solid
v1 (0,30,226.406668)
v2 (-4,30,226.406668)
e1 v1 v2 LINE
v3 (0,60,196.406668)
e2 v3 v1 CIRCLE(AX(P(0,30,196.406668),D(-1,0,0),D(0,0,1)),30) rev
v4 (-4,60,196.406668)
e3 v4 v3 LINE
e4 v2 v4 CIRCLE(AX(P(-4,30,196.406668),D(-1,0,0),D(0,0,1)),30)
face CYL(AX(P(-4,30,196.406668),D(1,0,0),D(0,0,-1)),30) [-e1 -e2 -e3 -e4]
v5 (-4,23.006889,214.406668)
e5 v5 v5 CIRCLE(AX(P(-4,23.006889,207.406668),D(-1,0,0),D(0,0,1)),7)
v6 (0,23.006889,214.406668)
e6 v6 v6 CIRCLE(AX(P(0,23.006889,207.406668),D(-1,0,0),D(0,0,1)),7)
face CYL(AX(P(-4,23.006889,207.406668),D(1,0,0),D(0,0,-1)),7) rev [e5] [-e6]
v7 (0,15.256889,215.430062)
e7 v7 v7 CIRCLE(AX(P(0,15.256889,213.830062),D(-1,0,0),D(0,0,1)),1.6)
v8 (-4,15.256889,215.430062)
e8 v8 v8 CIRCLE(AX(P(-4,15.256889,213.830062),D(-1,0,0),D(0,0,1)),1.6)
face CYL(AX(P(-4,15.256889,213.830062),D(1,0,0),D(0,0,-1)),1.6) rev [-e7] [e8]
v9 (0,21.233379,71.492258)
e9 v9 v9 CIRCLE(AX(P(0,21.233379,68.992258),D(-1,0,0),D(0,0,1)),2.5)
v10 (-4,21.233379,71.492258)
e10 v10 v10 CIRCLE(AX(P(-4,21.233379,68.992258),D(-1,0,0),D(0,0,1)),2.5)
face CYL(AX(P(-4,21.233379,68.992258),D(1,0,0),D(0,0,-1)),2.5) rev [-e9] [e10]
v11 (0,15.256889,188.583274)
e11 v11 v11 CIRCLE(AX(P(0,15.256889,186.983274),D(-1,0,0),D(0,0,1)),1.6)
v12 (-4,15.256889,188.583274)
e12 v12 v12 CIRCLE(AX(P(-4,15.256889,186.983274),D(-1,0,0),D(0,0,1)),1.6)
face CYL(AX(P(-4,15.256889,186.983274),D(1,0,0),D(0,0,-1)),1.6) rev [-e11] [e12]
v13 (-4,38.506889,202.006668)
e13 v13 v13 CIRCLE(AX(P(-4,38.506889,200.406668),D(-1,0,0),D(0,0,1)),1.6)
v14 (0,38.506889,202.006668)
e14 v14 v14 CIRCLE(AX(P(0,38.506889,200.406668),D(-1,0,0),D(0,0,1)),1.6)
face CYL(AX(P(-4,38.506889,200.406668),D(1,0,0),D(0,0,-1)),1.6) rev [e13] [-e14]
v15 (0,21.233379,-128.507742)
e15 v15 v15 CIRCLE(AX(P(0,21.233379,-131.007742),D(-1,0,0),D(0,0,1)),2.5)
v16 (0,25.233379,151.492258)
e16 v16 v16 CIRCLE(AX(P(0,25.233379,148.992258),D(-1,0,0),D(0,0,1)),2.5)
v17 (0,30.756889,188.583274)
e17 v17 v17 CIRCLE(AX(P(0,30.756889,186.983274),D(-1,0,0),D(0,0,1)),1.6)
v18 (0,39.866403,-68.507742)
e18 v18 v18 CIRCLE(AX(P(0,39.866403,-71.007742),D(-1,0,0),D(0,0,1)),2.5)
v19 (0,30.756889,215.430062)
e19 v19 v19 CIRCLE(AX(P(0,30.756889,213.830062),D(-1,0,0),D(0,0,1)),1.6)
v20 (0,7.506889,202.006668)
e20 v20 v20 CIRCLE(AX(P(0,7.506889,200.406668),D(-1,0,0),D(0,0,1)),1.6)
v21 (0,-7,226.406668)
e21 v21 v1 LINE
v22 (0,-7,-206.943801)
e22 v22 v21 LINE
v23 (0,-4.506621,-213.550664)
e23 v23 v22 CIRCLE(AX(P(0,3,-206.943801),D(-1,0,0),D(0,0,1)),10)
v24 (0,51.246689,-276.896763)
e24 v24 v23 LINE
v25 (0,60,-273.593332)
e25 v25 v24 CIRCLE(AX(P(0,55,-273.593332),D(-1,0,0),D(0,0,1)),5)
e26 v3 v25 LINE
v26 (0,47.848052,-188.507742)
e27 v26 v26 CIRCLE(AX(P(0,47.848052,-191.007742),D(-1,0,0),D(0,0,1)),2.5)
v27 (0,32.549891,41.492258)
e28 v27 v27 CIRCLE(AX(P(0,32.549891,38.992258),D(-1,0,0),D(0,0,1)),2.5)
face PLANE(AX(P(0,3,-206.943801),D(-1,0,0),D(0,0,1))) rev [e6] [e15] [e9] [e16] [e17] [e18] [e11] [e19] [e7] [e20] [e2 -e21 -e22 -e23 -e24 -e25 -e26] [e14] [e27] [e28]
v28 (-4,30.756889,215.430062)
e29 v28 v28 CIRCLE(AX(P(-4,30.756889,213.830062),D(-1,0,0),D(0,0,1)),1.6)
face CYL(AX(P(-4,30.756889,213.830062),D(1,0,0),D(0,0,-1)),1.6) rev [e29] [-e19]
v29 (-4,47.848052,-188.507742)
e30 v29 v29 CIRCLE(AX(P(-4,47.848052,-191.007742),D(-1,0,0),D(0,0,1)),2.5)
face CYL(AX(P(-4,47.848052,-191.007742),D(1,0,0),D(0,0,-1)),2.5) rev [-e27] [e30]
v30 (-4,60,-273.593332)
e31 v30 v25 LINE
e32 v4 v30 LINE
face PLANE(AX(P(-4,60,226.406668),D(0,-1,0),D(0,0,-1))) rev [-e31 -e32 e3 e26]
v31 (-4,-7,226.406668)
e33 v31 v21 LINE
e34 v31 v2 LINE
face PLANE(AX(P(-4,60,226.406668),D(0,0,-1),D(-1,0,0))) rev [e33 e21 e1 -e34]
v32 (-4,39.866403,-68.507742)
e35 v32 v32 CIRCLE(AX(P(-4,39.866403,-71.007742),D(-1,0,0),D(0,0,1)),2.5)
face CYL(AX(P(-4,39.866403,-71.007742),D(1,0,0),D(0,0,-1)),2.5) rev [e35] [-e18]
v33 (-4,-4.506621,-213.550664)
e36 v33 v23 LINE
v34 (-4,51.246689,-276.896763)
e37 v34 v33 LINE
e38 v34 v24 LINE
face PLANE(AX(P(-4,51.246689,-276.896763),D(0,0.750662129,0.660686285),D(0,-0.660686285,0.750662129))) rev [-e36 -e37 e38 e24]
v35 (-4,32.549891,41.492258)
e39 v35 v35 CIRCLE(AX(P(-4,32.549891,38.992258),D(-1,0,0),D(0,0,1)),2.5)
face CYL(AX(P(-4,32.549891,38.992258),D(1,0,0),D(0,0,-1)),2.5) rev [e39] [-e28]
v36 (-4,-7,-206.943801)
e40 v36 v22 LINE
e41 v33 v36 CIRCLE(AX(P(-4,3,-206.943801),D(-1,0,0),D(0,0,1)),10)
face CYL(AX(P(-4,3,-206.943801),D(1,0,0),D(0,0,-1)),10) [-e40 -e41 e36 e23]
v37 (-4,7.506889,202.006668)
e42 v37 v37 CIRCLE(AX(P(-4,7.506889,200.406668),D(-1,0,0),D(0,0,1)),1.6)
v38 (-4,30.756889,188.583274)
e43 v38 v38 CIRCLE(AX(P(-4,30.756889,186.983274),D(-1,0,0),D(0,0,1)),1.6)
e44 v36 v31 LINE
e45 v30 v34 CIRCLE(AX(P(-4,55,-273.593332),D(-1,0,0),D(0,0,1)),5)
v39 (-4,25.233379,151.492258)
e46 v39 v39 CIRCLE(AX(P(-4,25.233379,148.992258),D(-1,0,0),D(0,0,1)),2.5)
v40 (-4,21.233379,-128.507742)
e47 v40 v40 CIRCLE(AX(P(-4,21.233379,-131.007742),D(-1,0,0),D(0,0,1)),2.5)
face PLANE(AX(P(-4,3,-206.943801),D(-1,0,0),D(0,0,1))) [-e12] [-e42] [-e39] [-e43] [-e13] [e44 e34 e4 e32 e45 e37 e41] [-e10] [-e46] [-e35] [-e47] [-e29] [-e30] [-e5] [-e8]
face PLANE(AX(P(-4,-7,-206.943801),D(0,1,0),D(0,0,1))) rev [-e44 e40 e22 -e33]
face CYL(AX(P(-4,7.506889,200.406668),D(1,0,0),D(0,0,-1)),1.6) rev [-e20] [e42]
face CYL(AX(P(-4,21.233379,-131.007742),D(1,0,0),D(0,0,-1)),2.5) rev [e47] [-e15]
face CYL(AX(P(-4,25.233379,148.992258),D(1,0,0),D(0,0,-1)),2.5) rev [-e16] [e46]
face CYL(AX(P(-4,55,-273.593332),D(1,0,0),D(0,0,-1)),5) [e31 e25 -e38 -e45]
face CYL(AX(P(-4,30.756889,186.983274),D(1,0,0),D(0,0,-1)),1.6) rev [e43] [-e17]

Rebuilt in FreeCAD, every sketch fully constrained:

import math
import FreeCAD as App
import Part
import Sketcher


def edges_at(feature, points):
    """Names of the edges that pass closest to the given points."""
    edges = feature.Shape.Edges
    near = lambda p: min(range(len(edges)), key=lambda i: edges[i].distToShape(Part.Vertex(*p))[0])
    return sorted({f"Edge{near(p) + 1}" for p in points})

doc = App.newDocument("Part")
body = doc.addObject("PartDesign::Body", "Body")

sketch1 = body.newObject("Sketcher::SketchObject", "Sketch")
sketch1.AttachmentSupport = (doc.getObject("YZ_Plane"), [""])
sketch1.MapMode = "FlatFace"
sketch1.addGeometry([
    Part.LineSegment(App.Vector(-7, -206.9, 0), App.Vector(-7, 226.4, 0)),
    Part.LineSegment(App.Vector(-7, 226.4, 0), App.Vector(60, 226.4, 0)),
    Part.LineSegment(App.Vector(60, 226.4, 0), App.Vector(60, -273.6, 0)),
    Part.ArcOfCircle(Part.Circle(App.Vector(55, -273.6, 0), App.Vector(0, 0, 1), 5), math.radians(-139), math.radians(0)),
    Part.LineSegment(App.Vector(51.2, -276.9, 0), App.Vector(-4.5, -213.6, 0)),
    Part.ArcOfCircle(Part.Circle(App.Vector(3, -206.9, 0), App.Vector(0, 0, 1), 10), math.radians(180), math.radians(221)),
    Part.Circle(App.Vector(21.2, -131, 0), App.Vector(0, 0, 1), 2.5),
    Part.Circle(App.Vector(7.5, 200.4, 0), App.Vector(0, 0, 1), 1.6),
    Part.Circle(App.Vector(15.3, 187, 0), App.Vector(0, 0, 1), 1.6),
    Part.Circle(App.Vector(15.3, 213.8, 0), App.Vector(0, 0, 1), 1.6),
    Part.Circle(App.Vector(21.2, 69, 0), App.Vector(0, 0, 1), 2.5),
    Part.Circle(App.Vector(25.2, 149, 0), App.Vector(0, 0, 1), 2.5),
    Part.Circle(App.Vector(23, 207.4, 0), App.Vector(0, 0, 1), 7),
    Part.Circle(App.Vector(47.8, -191, 0), App.Vector(0, 0, 1), 2.5),
    Part.Circle(App.Vector(39.9, -71, 0), App.Vector(0, 0, 1), 2.5),
    Part.Circle(App.Vector(32.5, 39, 0), App.Vector(0, 0, 1), 2.5),
    Part.Circle(App.Vector(30.8, 187, 0), App.Vector(0, 0, 1), 1.6),
    Part.Circle(App.Vector(30.8, 213.8, 0), App.Vector(0, 0, 1), 1.6),
    Part.Circle(App.Vector(38.5, 200.4, 0), App.Vector(0, 0, 1), 1.6),
], False)
sketch1.addConstraint([
    Sketcher.Constraint("Coincident", 0, 2, 1, 1),
    Sketcher.Constraint("Coincident", 1, 2, 2, 1),
    Sketcher.Constraint("Tangent", 2, 2, 3, 2),
    Sketcher.Constraint("Tangent", 3, 1, 4, 1),
    Sketcher.Constraint("Tangent", 4, 2, 5, 2),
    Sketcher.Constraint("Tangent", 5, 1, 0, 1),
    Sketcher.Constraint("Vertical", 0),
    Sketcher.Constraint("Horizontal", 1),
    Sketcher.Constraint("Vertical", 2),
    Sketcher.Constraint("Equal", 7, 8),
    Sketcher.Constraint("Equal", 8, 9),
    Sketcher.Constraint("Equal", 6, 10),
    Sketcher.Constraint("Equal", 10, 11),
    Sketcher.Constraint("Equal", 11, 13),
    Sketcher.Constraint("Equal", 13, 14),
    Sketcher.Constraint("Equal", 14, 15),
    Sketcher.Constraint("Equal", 9, 16),
    Sketcher.Constraint("Equal", 16, 17),
    Sketcher.Constraint("Equal", 17, 18),
    Sketcher.Constraint("Horizontal", 8, 3, 16, 3),
    Sketcher.Constraint("Horizontal", 9, 3, 17, 3),
    Sketcher.Constraint("Horizontal", 7, 3, 18, 3),
    Sketcher.Constraint("Vertical", 8, 3, 9, 3),
    Sketcher.Constraint("Vertical", 6, 3, 10, 3),
    Sketcher.Constraint("Vertical", 16, 3, 17, 3),
    Sketcher.Constraint("Diameter", 6, 5.0),
    Sketcher.Constraint("Diameter", 12, 14.0),
    Sketcher.Constraint("Radius", 3, 5.0),
    Sketcher.Constraint("Radius", 5, 10.0),
    Sketcher.Constraint("Diameter", 7, 3.2),
    Sketcher.Constraint("DistanceX", 1, 1, 1, 2, 67.0),
    Sketcher.Constraint("DistanceY", 2, 2, 2, 1, 500.0),
    Sketcher.Constraint("DistanceX", -1, 1, 3, 3, 55.0),
    Sketcher.Constraint("DistanceY", 3, 3, 7, 3, 474.0),
    Sketcher.Constraint("DistanceY", 6, 3, 10, 3, 200.0),
    Sketcher.Constraint("DistanceX", 10, 3, 11, 3, 4.0),
    Sketcher.Constraint("DistanceY", 10, 3, 11, 3, 80.0),
    Sketcher.Constraint("DistanceY", 7, 3, 12, 3, 7.0),
    Sketcher.Constraint("DistanceY", 13, 3, 6, 3, 60.0),
    Sketcher.Constraint("DistanceY", 6, 3, 14, 3, 60.0),
    Sketcher.Constraint("DistanceY", 15, 3, 10, 3, 30.0),
    Sketcher.Constraint("DistanceX", 7, 3, 12, 3, 15.5),
    Sketcher.Constraint("DistanceX", 8, 3, 16, 3, 15.5),
    Sketcher.Constraint("DistanceX", 12, 3, 18, 3, 15.5),
    Sketcher.Constraint("DistanceX", 7, 3, 8, 3, 7.75),
    Sketcher.Constraint("DistanceX", 4, 2, 6, 3, 25.740001),
    Sketcher.Constraint("DistanceX", 8, 3, 15, 3, 17.293002),
    Sketcher.Constraint("DistanceY", 0, 1, 0, 2, 433.350469),
    Sketcher.Constraint("DistanceY", 5, 3, -1, 1, 206.943801),
    Sketcher.Constraint("DistanceX", -1, 1, 7, 3, 7.506889),
    Sketcher.Constraint("DistanceY", -1, 1, 9, 3, 213.830062),
    Sketcher.Constraint("DistanceY", 5, 3, 6, 3, 75.936059),
    Sketcher.Constraint("DistanceX", 14, 3, 13, 3, 7.981649),
    Sketcher.Constraint("DistanceX", 15, 3, 14, 3, 7.316512),
    Sketcher.Constraint("DistanceY", -1, 1, 8, 3, 186.983274),
])
pad1 = body.newObject("PartDesign::Pad", "Pad")
pad1.Profile = sketch1
pad1.Length = 4
pad1.Reversed = True
doc.recompute()

fillet = body.newObject("PartDesign::Fillet", "Fillet")
fillet.Base = (pad1, edges_at(pad1, [(-2, 60, 226.407)]))
fillet.Radius = 30

doc.recompute()
